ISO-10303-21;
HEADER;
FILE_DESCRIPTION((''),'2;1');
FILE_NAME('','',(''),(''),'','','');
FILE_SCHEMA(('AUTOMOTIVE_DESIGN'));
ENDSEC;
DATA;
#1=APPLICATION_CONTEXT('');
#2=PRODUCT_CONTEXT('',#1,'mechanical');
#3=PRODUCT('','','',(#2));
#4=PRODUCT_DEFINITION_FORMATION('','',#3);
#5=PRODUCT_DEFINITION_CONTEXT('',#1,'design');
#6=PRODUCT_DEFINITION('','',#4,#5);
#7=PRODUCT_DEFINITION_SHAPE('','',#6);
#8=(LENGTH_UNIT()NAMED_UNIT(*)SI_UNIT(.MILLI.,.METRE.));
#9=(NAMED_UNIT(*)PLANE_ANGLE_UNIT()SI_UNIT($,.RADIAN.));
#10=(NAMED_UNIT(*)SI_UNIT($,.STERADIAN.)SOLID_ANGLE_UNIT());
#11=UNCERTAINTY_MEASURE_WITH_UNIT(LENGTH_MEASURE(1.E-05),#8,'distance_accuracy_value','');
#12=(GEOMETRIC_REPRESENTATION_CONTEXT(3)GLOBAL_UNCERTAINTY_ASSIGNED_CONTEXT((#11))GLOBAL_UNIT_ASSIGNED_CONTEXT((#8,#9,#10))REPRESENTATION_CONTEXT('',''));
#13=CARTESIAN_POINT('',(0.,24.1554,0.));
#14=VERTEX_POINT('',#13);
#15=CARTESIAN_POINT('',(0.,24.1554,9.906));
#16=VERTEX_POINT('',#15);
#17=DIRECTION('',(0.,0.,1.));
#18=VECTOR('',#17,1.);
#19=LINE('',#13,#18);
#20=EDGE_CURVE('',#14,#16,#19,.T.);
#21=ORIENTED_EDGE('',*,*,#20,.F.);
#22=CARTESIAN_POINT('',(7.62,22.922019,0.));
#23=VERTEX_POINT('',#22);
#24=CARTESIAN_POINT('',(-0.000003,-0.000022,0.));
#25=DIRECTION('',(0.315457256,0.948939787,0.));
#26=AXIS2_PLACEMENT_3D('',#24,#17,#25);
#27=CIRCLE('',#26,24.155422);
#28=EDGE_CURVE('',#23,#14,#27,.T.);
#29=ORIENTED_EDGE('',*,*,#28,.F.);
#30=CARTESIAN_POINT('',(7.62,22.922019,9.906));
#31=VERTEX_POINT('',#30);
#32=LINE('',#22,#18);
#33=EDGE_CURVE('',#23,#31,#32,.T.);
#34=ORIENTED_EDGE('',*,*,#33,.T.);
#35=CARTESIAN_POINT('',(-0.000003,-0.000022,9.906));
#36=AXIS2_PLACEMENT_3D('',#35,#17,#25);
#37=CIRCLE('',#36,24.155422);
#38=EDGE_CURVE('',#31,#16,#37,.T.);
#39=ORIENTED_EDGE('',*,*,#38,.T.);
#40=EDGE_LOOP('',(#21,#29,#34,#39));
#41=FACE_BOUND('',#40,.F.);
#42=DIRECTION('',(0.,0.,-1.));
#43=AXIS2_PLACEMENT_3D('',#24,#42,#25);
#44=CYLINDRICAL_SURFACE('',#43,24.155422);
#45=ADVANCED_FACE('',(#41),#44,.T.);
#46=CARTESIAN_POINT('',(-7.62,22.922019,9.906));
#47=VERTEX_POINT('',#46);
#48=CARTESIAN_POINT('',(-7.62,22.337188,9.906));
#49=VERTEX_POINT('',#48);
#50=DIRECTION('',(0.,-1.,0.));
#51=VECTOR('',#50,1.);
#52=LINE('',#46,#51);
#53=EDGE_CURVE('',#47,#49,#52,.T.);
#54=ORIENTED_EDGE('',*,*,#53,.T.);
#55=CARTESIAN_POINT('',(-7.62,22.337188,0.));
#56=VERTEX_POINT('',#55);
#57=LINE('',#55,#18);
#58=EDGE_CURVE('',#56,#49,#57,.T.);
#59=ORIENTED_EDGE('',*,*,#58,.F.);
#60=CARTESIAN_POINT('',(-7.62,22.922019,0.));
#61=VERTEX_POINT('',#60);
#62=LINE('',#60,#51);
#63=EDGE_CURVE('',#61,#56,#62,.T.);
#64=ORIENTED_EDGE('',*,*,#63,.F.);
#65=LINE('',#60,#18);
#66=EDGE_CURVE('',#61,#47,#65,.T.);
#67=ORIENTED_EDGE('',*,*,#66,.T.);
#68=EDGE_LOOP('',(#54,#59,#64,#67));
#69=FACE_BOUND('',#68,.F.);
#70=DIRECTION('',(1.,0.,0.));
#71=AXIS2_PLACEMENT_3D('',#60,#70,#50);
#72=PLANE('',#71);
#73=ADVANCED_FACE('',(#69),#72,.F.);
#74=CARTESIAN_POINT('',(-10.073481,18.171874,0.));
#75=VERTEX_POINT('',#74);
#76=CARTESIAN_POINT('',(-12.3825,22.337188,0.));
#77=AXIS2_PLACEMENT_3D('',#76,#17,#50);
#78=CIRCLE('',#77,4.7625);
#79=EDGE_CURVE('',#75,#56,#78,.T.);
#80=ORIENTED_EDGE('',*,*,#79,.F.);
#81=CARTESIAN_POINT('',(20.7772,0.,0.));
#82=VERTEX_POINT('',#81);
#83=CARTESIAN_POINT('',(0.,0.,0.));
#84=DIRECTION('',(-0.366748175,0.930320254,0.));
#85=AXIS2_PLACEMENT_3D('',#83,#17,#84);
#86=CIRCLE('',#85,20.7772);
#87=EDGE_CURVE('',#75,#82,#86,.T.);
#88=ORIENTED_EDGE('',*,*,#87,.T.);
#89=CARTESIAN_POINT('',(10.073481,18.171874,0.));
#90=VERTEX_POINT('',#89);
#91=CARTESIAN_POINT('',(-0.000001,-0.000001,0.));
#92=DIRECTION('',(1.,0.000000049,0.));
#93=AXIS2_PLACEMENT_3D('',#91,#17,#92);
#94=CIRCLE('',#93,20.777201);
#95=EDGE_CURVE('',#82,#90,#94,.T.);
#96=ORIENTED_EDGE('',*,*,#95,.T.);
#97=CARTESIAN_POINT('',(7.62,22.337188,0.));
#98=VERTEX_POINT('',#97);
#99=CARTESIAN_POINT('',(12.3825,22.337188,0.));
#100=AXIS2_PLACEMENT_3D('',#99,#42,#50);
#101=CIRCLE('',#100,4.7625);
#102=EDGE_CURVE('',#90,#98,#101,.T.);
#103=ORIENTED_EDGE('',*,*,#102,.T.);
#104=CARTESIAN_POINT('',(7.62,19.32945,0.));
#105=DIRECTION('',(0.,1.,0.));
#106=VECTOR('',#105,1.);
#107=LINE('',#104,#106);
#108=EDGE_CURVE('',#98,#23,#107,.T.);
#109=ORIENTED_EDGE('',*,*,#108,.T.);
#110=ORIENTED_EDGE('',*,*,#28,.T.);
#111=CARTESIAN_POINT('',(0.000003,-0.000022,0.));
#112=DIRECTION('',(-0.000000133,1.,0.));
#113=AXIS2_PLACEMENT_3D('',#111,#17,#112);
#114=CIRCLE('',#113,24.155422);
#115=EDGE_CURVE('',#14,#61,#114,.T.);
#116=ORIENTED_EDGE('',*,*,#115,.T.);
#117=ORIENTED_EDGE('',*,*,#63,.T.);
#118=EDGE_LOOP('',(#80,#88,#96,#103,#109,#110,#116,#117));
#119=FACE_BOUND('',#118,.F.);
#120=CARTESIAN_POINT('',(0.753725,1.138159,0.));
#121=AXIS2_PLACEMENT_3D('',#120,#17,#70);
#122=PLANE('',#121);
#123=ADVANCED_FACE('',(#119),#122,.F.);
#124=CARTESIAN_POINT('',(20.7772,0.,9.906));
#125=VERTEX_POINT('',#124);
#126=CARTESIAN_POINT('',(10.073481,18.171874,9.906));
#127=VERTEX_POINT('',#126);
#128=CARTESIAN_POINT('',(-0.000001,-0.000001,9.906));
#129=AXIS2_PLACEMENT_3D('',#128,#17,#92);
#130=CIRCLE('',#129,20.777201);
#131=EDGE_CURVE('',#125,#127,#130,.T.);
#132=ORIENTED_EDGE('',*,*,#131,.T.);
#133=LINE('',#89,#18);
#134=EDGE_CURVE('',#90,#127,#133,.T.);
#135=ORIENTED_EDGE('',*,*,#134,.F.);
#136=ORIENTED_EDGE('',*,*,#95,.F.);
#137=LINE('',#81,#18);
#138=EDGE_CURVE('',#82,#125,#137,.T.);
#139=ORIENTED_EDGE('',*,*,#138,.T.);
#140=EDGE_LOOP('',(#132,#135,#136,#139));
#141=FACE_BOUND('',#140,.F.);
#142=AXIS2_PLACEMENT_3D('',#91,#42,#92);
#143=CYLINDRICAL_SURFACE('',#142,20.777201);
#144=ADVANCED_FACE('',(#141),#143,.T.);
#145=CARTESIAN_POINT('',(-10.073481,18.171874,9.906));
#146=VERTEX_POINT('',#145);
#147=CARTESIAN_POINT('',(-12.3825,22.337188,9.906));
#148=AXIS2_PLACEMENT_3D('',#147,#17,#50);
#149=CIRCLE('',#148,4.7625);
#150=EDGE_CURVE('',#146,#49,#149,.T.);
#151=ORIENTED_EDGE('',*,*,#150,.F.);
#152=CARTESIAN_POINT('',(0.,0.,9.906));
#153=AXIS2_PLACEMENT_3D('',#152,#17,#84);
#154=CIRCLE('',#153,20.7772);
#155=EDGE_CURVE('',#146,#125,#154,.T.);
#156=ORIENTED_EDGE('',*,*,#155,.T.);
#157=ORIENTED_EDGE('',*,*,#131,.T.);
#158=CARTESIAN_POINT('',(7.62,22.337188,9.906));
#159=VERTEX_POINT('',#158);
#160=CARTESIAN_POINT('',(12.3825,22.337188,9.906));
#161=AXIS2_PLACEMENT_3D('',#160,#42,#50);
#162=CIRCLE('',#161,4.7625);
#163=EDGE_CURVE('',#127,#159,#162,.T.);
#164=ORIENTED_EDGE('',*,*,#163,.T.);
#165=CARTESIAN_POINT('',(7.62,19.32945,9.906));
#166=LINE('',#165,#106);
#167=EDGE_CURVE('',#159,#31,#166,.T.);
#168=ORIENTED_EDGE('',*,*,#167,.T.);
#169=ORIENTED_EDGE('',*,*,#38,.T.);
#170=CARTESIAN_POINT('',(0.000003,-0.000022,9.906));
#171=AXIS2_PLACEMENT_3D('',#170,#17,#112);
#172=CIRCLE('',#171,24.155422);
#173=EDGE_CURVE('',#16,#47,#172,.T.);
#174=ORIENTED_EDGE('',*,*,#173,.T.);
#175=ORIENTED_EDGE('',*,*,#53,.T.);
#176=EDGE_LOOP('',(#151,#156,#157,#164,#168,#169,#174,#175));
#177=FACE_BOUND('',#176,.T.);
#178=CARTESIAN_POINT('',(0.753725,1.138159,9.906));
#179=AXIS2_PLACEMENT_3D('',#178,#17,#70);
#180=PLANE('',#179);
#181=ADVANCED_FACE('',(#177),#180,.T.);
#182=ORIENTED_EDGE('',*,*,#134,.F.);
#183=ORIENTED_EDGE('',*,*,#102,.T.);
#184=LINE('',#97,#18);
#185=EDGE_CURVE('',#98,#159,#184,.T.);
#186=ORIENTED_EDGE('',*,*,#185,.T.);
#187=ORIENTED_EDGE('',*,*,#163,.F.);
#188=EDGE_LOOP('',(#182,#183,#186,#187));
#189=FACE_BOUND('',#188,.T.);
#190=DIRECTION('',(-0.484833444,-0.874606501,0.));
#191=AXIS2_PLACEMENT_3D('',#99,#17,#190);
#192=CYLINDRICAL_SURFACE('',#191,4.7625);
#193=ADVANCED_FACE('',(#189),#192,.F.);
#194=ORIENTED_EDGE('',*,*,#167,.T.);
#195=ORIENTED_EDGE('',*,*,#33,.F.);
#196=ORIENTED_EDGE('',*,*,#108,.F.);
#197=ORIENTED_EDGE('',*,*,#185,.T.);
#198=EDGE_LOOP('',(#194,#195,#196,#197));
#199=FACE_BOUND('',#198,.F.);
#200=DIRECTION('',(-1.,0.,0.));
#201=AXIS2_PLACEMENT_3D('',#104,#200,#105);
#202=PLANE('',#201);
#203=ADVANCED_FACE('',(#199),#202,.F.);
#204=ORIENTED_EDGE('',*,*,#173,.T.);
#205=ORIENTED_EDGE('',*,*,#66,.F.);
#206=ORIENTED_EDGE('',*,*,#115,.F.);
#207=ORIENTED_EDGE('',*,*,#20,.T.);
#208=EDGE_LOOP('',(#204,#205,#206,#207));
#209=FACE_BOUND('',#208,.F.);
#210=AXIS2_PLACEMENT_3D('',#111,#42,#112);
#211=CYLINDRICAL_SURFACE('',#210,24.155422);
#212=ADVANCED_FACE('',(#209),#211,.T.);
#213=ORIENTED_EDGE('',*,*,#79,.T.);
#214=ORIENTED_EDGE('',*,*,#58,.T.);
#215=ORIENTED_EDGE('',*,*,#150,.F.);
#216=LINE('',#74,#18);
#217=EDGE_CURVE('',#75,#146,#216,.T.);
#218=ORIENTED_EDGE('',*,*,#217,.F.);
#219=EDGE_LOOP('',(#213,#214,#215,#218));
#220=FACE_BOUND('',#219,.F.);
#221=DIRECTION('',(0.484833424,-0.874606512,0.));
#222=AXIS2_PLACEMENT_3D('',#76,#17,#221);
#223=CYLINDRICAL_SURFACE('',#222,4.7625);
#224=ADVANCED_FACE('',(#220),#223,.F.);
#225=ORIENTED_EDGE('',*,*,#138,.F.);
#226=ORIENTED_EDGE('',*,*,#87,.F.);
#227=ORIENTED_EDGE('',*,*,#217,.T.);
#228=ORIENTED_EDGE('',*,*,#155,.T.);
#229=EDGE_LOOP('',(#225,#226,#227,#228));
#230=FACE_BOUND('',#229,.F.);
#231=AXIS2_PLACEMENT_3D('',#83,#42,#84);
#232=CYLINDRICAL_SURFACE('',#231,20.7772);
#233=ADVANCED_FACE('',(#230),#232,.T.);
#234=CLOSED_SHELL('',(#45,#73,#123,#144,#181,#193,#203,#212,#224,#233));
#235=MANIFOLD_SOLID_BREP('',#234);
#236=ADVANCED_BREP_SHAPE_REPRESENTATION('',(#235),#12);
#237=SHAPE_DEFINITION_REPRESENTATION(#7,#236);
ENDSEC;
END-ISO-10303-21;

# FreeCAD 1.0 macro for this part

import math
import FreeCAD as App
import Part
import Sketcher
Q = App.Units.Quantity


def edges_at(feature, points):
    """Names of the edges that pass closest to the given points."""
    edges = feature.Shape.Edges
    near = lambda p: min(range(len(edges)), key=lambda i: edges[i].distToShape(Part.Vertex(*p))[0])
    return sorted({f"Edge{near(p) + 1}" for p in points})

doc = App.newDocument("Part")
body = doc.addObject("PartDesign::Body", "Body")

# Sketch on XY plane
sketch1 = body.newObject("Sketcher::SketchObject", "Sketch")
sketch1.AttachmentSupport = (doc.getObject("XY_Plane"), [""])
sketch1.MapMode = "FlatFace"
sketch1.addGeometry([
    Part.ArcOfCircle(Part.Circle(App.Vector(0, 0, 0), App.Vector(0, 0, 1), 20.8), math.radians(112), math.radians(360)),  # 0
    Part.ArcOfCircle(Part.Circle(App.Vector(0, 0, 0), App.Vector(0, 0, 1), 20.8), math.radians(0), math.radians(68)),  # 1
    Part.LineSegment(App.Vector(7.6, 19.3, 0), App.Vector(7.6, 22.9, 0)),  # 2
    Part.ArcOfCircle(Part.Circle(App.Vector(0, 0, 0), App.Vector(0, 0, 1), 24.2), math.radians(71.61), math.radians(90)),  # 3
    Part.ArcOfCircle(Part.Circle(App.Vector(0, 0, 0), App.Vector(0, 0, 1), 24.2), math.radians(90), math.radians(108.39)),  # 4
    Part.LineSegment(App.Vector(-7.6, 22.9, 0), App.Vector(-7.6, 19.3, 0)),  # 5
], False)
sketch1.addConstraint([
    Sketcher.Constraint("Tangent", 0, 2, 1, 1),
    Sketcher.Constraint("Coincident", 1, 2, 2, 1),
    Sketcher.Constraint("Coincident", 2, 2, 3, 1),
    Sketcher.Constraint("Tangent", 3, 2, 4, 1),
    Sketcher.Constraint("Coincident", 4, 2, 5, 1),
    Sketcher.Constraint("Coincident", 5, 2, 0, 1),
    Sketcher.Constraint("Vertical", 2),
    Sketcher.Constraint("Vertical", 5),
    Sketcher.Constraint("Coincident", 0, 3, -1, 1),
    Sketcher.Constraint("Equal", 0, 1),
    Sketcher.Constraint("Equal", 3, 4),
    Sketcher.Constraint("Symmetric", 2, 2, 4, 2, -2),
    Sketcher.Constraint("PointOnObject", 0, 2, -1),
    Sketcher.Constraint("PointOnObject", 3, 2, -2),
    Sketcher.Constraint("Radius", 0, Q("0.818 in")),
    Sketcher.Constraint("DistanceX", -1, 1, 1, 2, Q("0.3 in")),
    Sketcher.Constraint("DistanceY", -1, 1, 3, 2, Q("0.951 in")),
    Sketcher.Constraint("Radius", 3, 24.155422),
])
pad1 = body.newObject("PartDesign::Pad", "Pad")
pad1.Profile = sketch1
pad1.Length = Q("0.39 in")
doc.recompute()

fillet = body.newObject("PartDesign::Fillet", "Fillet")
fillet.Base = (pad1, edges_at(pad1, [(7.62, 19.329, 4.953), (-7.62, 19.329, 4.953)]))
fillet.Radius = Q("0.1875 in")

doc.recompute()
